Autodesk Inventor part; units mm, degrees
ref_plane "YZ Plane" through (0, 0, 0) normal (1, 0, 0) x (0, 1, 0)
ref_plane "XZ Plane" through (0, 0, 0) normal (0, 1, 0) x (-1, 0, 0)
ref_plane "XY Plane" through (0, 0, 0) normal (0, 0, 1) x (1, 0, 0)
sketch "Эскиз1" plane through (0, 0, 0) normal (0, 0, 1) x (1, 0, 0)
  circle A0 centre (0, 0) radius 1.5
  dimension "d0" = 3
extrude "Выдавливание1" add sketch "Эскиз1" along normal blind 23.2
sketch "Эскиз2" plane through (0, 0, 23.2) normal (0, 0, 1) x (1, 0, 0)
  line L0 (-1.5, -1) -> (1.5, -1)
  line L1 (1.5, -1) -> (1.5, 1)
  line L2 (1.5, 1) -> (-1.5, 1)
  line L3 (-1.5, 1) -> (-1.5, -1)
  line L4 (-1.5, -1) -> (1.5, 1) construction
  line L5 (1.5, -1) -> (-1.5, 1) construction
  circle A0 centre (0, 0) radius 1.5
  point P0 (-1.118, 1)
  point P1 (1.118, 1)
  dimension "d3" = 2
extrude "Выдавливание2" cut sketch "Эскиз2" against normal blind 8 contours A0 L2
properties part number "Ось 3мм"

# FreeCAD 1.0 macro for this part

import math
import FreeCAD as App
import Part
import Sketcher

V = App.Vector

doc = App.newDocument("Part")
body = doc.addObject("PartDesign::Body", "Body")

# Sketch on XY plane
sketch1 = body.newObject("Sketcher::SketchObject", "Sketch")
sketch1.AttachmentSupport = (doc.getObject("XY_Plane"), [""])
sketch1.MapMode = "FlatFace"
sketch1.addGeometry(Part.Circle(V(0, 0, 0), V(0, 0, 1), 1.5), False)
sketch1.addConstraint([
    Sketcher.Constraint("Coincident", 0, 3, -1, 1),
    Sketcher.Constraint("Diameter", 0, 3.0),
])
pad1 = body.newObject("PartDesign::Pad", "Pad")
pad1.Profile = sketch1
pad1.Length = 23.2

# Sketch on XY plane
sketch2 = body.newObject("Sketcher::SketchObject", "Sketch001")
sketch2.AttachmentSupport = (doc.getObject("XY_Plane"), [""])
sketch2.MapMode = "FlatFace"
sketch2.AttachmentOffset = App.Placement(V(0, 0, 23.2), App.Rotation())
sketch2.addGeometry([
    Part.ArcOfCircle(Part.Circle(V(0, 0, 0), V(0, 0, 1), 1.5), math.radians(42), math.radians(138)),
    Part.LineSegment(V(-1.1, 1, 0), V(1.1, 1, 0)),
], False)
sketch2.addConstraint([
    Sketcher.Constraint("Coincident", 0, 1, 1, 2),
    Sketcher.Constraint("Coincident", 1, 1, 0, 2),
    Sketcher.Constraint("Horizontal", 1),
    Sketcher.Constraint("Coincident", 0, 3, -1, 1),
    Sketcher.Constraint("Radius", 0, 1.5),
    Sketcher.Constraint("DistanceY", -1, 1, 0, 1, 1.0),
])
pocket1 = body.newObject("PartDesign::Pocket", "Pocket")
pocket1.Profile = sketch2
pocket1.Length = 8

doc.recompute()
